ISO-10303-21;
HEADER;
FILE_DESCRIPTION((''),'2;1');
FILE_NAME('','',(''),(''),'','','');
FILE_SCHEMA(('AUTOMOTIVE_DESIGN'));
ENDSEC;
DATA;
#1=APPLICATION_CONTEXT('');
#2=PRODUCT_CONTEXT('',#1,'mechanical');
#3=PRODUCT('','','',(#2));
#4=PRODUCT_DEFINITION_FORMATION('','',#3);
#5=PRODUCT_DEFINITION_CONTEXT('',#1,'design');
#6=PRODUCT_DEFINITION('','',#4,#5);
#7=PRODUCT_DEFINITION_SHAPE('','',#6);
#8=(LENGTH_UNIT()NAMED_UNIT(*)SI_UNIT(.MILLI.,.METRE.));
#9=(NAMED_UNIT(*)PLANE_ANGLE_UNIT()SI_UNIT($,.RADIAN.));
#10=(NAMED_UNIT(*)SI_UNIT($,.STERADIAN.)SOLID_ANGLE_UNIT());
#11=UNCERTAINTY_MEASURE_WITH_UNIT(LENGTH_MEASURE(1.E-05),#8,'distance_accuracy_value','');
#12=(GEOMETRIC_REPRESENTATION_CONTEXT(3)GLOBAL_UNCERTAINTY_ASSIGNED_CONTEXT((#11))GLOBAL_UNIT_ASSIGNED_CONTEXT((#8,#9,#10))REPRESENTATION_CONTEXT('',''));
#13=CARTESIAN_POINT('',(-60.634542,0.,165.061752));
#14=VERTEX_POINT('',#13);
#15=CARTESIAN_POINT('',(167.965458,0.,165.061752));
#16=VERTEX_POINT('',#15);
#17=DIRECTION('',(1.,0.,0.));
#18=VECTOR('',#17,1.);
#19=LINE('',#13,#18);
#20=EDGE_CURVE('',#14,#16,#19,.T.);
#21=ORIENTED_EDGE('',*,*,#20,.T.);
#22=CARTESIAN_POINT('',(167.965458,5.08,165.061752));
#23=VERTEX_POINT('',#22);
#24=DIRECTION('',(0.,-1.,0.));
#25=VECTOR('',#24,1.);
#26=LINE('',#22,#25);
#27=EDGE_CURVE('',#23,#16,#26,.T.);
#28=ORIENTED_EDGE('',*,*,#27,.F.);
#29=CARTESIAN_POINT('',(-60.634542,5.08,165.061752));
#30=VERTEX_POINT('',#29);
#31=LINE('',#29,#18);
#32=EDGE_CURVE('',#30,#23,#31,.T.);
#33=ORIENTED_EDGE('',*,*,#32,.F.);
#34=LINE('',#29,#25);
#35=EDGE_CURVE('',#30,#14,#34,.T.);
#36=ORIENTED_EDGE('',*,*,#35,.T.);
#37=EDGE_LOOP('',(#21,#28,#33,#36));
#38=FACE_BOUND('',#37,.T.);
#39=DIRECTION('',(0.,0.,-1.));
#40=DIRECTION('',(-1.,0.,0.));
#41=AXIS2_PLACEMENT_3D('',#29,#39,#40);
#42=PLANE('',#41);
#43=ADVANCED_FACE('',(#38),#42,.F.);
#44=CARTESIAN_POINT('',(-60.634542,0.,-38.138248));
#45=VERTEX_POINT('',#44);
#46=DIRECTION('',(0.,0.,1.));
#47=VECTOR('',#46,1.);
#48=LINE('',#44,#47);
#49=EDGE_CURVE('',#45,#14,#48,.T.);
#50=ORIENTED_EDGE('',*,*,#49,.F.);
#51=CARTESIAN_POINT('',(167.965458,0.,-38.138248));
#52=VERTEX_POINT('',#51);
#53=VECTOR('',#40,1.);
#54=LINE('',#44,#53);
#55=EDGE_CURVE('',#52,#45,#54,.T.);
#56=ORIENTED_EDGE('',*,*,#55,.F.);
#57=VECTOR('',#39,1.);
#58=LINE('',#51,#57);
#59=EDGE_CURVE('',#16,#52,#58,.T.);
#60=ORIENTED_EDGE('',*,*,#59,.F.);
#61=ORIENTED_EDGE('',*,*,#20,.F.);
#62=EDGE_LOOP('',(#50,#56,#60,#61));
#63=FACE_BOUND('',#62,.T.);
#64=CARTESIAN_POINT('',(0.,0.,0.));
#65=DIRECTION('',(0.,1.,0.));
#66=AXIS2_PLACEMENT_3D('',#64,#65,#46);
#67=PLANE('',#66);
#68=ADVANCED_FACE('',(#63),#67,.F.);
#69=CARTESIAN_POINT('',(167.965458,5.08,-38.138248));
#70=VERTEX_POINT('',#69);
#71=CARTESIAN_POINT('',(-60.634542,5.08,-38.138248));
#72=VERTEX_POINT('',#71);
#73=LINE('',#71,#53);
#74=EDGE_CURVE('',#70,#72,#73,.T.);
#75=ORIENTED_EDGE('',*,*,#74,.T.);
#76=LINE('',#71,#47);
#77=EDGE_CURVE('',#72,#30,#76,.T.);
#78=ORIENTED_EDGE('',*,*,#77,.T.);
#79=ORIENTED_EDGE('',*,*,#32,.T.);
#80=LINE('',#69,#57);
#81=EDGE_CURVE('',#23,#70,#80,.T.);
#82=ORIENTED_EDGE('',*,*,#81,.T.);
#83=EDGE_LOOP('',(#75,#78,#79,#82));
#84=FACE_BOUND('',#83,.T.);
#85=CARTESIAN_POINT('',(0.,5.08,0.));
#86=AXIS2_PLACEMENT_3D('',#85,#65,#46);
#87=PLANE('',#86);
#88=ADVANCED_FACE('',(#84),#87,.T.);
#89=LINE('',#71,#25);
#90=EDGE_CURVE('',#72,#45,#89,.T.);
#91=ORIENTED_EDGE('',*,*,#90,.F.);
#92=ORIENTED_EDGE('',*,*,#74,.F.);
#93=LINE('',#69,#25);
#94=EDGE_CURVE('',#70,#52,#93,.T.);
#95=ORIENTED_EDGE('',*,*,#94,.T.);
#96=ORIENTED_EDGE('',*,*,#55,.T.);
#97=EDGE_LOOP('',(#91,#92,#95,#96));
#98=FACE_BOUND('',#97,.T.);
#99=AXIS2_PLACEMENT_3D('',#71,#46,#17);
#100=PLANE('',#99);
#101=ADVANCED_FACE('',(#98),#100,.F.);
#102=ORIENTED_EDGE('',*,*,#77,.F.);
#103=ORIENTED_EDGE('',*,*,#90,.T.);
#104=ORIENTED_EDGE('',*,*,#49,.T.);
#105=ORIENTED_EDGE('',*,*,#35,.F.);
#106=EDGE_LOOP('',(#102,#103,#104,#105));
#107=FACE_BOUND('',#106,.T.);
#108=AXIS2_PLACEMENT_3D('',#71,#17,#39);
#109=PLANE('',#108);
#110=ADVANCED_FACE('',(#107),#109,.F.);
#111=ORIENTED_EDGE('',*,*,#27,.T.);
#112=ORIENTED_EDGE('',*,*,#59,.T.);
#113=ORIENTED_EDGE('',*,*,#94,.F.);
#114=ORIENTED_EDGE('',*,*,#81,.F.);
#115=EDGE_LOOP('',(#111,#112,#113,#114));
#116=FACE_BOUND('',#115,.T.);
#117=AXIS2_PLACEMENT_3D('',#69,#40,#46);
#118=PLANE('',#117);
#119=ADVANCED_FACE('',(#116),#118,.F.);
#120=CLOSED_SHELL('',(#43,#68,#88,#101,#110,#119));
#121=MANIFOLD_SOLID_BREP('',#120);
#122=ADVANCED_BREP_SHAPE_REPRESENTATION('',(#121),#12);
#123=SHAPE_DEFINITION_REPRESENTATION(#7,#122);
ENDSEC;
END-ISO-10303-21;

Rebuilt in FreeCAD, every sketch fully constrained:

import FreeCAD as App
import Part
import Sketcher

V = App.Vector
Q = App.Units.Quantity

doc = App.newDocument("Part")
body = doc.addObject("PartDesign::Body", "Body")

# Sketch on XZ plane
sketch1 = doc.addObject("Sketcher::SketchObject", "Sketch")
body.addObject(sketch1)
sketch1.AttachmentSupport = (doc.XZ_Plane, [""])
sketch1.MapMode = "FlatFace"
sketch1.addGeometry(Part.LineSegment(V(-60.634542, -38.138248, 0), V(-60.634542, 165.061752, 0)), False)
sketch1.addGeometry(Part.LineSegment(V(-60.634542, 165.061752, 0), V(167.965458, 165.061752, 0)), False)
sketch1.addGeometry(Part.LineSegment(V(167.965458, 165.061752, 0), V(167.965458, -38.138248, 0)), False)
sketch1.addGeometry(Part.LineSegment(V(167.965458, -38.138248, 0), V(-60.634542, -38.138248, 0)), False)
sketch1.addConstraint(Sketcher.Constraint("Coincident", 0, 2, 1, 1))
sketch1.addConstraint(Sketcher.Constraint("Coincident", 1, 2, 2, 1))
sketch1.addConstraint(Sketcher.Constraint("Coincident", 2, 2, 3, 1))
sketch1.addConstraint(Sketcher.Constraint("Coincident", 3, 2, 0, 1))
sketch1.addConstraint(Sketcher.Constraint("Vertical", 0))
sketch1.addConstraint(Sketcher.Constraint("Horizontal", 1))
sketch1.addConstraint(Sketcher.Constraint("Vertical", 2))
sketch1.addConstraint(Sketcher.Constraint("Horizontal", 3))
sketch1.addConstraint(Sketcher.Constraint("DistanceX", 1, 1, 1, 2, Q("9 in")))
sketch1.addConstraint(Sketcher.Constraint("DistanceY", 0, 1, 0, 2, Q("8 in")))
sketch1.addConstraint(Sketcher.Constraint("DistanceX", 0, 2, -1, 1, 60.634542))
sketch1.addConstraint(Sketcher.Constraint("DistanceY", -1, 1, 0, 2, 165.061752))
pad1 = doc.addObject("PartDesign::Pad", "Pad")
body.addObject(pad1)
pad1.Profile = sketch1
pad1.Length = Q("0.2 in")
pad1.Reversed = True

doc.recompute()
